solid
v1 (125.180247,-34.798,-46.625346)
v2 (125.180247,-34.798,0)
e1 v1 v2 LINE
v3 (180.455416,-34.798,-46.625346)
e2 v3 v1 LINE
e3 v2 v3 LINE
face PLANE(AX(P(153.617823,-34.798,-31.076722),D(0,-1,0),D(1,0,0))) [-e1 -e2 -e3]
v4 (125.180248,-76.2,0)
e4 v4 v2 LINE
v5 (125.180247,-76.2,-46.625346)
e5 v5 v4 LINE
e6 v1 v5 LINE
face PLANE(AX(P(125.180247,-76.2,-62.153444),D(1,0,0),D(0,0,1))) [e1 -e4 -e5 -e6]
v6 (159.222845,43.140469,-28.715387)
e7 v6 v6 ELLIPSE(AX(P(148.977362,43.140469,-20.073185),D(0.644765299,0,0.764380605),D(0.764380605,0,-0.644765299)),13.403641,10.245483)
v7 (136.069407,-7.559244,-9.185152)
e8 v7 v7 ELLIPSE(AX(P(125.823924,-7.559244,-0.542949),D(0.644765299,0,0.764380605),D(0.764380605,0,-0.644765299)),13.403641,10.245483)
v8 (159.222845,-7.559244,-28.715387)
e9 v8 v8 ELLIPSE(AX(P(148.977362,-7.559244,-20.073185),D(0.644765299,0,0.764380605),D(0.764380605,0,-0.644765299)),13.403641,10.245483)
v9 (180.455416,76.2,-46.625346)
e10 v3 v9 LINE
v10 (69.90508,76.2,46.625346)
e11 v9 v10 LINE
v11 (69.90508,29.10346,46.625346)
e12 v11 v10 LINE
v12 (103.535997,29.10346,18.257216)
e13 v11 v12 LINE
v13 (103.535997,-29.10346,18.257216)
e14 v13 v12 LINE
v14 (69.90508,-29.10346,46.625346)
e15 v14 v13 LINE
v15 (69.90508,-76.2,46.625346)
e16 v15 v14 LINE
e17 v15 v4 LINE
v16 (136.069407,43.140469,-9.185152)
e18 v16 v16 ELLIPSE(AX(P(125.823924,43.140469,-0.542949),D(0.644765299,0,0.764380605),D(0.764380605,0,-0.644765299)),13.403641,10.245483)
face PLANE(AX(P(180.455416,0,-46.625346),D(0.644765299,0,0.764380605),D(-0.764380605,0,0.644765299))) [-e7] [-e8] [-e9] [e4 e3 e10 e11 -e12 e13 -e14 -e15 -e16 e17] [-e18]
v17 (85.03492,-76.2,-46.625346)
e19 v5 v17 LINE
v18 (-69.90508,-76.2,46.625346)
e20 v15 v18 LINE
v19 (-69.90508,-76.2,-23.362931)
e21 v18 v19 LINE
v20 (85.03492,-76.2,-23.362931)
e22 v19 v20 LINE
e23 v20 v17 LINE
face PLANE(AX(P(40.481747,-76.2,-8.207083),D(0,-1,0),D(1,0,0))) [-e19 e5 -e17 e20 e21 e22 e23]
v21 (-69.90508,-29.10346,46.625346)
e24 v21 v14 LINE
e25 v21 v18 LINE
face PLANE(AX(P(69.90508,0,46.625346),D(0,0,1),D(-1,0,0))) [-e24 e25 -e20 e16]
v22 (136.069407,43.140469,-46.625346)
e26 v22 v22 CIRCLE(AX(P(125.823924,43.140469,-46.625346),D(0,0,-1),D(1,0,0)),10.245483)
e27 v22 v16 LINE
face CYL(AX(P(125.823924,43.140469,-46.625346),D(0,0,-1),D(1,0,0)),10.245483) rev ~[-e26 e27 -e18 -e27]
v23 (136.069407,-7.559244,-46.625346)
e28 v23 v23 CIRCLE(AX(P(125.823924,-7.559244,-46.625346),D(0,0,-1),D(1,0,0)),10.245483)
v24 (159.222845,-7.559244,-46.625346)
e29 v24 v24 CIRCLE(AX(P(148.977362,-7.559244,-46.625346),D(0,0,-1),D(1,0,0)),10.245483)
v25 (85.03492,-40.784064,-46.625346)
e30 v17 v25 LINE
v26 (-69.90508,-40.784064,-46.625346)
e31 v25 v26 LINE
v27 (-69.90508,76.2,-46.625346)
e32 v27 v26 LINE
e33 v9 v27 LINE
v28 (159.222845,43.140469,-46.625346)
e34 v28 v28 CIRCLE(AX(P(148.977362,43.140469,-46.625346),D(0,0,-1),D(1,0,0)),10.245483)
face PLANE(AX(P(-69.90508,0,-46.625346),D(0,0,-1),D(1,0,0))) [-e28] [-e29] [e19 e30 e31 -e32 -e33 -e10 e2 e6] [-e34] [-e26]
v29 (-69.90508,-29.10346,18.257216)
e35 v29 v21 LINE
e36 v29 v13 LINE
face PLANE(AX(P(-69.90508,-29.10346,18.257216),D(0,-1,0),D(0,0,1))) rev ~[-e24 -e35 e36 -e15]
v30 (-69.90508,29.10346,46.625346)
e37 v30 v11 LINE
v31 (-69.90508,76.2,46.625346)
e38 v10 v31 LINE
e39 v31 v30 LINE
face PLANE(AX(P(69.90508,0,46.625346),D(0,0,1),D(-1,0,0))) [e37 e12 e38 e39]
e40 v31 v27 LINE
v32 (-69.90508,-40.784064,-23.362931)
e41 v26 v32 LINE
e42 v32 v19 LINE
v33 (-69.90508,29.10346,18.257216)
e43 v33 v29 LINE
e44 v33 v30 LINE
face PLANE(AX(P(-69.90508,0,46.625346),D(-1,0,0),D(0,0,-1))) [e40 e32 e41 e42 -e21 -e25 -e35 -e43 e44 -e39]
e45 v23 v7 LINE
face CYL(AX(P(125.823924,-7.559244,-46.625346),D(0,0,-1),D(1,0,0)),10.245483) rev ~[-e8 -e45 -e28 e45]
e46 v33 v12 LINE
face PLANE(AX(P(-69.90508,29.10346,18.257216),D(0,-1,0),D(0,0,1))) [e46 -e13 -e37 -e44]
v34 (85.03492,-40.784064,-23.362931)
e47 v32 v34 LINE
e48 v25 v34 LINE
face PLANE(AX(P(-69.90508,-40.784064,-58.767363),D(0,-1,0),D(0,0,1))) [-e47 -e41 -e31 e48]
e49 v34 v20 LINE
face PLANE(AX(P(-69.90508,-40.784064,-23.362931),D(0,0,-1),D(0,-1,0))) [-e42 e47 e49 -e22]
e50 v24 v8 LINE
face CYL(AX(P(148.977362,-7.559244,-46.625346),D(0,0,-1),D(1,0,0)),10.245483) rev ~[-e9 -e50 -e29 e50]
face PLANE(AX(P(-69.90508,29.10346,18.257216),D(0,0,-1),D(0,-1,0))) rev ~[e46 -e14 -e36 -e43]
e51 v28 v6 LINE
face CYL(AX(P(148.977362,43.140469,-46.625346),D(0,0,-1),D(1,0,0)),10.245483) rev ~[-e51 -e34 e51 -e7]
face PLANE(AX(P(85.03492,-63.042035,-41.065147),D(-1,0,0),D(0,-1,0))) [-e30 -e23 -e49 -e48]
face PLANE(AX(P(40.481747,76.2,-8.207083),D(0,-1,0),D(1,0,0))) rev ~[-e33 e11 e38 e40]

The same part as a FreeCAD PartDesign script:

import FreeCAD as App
import Part
import Sketcher
Q = App.Units.Quantity


def add_polygon(sketch, points):
    """Adds a closed chain of lines whose ends are joined by coincident constraints."""
    first, n = sketch.GeometryCount, len(points)
    for a, b in zip(points, points[1:] + points[:1]):
        sketch.addGeometry(Part.LineSegment(App.Vector(*a, 0), App.Vector(*b, 0)), False)
    for i in range(n):
        sketch.addConstraint(Sketcher.Constraint("Coincident", first + i, 2, first + (i + 1) % n, 1))

doc = App.newDocument("Part")
body = doc.addObject("PartDesign::Body", "Body")

sketch1 = body.newObject("Sketcher::SketchObject", "Sketch")
sketch1.AttachmentSupport = (doc.getObject("XZ_Plane"), [""])
sketch1.MapMode = "FlatFace"
add_polygon(sketch1, [(70, 47), (-70, 47), (-70, -47), (180, -47)])
sketch1.addConstraint(Sketcher.Constraint("Horizontal", 0))
sketch1.addConstraint(Sketcher.Constraint("Vertical", 1))
sketch1.addConstraint(Sketcher.Constraint("Horizontal", 2))
sketch1.addConstraint(Sketcher.Constraint("Symmetric", 1, 2, 3, 2, -1, 1))
sketch1.addConstraint(Sketcher.Constraint("DistanceX", 0, 2, 0, 1, 139.81016))
sketch1.addConstraint(Sketcher.Constraint("DistanceY", 1, 2, 1, 1, 93.250692))
sketch1.addConstraint(Sketcher.Constraint("DistanceX", 2, 1, 2, 2, 250.360496))
pad1 = body.newObject("PartDesign::Pad", "Pad")
pad1.Profile = sketch1
pad1.Length = Q("6 in")
pad1.Midplane = True

sketch2 = body.newObject("Sketcher::SketchObject", "Sketch001")
sketch2.AttachmentSupport = (doc.getObject("YZ_Plane"), [""])
sketch2.MapMode = "FlatFace"
sketch2.AttachmentOffset = App.Placement(App.Vector(0, 0, -69.90508), App.Rotation())
add_polygon(sketch2, [(29, 76), (29, 18), (-29, 18), (-29, 76)])
sketch2.addConstraint(Sketcher.Constraint("Vertical", 0))
sketch2.addConstraint(Sketcher.Constraint("Horizontal", 1))
sketch2.addConstraint(Sketcher.Constraint("Vertical", 2))
sketch2.addConstraint(Sketcher.Constraint("Horizontal", 3))
sketch2.addConstraint(Sketcher.Constraint("DistanceX", 1, 2, 1, 1, 58.20692))
sketch2.addConstraint(Sketcher.Constraint("DistanceY", 0, 2, 0, 1, 57.454397))
sketch2.addConstraint(Sketcher.Constraint("DistanceX", -1, 1, 0, 2, 29.10346))
sketch2.addConstraint(Sketcher.Constraint("DistanceY", -1, 1, 0, 2, 18.257216))
pocket1 = body.newObject("PartDesign::Pocket", "Pocket")
pocket1.Profile = sketch2
pocket1.Length = Q("8.47 in")
pocket1.Reversed = True

sketch3 = body.newObject("Sketcher::SketchObject", "Sketch002")
sketch3.AttachmentSupport = (doc.getObject("XZ_Plane"), [""])
sketch3.MapMode = "FlatFace"
sketch3.AttachmentOffset = App.Placement(App.Vector(0, 0, 3 * 25.4), App.Rotation())
add_polygon(sketch3, [(186, 8), (115, 8), (180, -47), (115, -47), (115, -62), (186, -62)])
sketch3.addConstraint(Sketcher.Constraint("Horizontal", 0))
sketch3.addConstraint(Sketcher.Constraint("Horizontal", 2))
sketch3.addConstraint(Sketcher.Constraint("Vertical", 3))
sketch3.addConstraint(Sketcher.Constraint("Horizontal", 4))
sketch3.addConstraint(Sketcher.Constraint("Vertical", 5))
sketch3.addConstraint(Sketcher.Constraint("Vertical", 0, 2, 2, 2))
sketch3.addConstraint(Sketcher.Constraint("DistanceX", 0, 2, 0, 1, 70.56239))
sketch3.addConstraint(Sketcher.Constraint("DistanceY", 5, 1, 5, 2, 70.124939))
sketch3.addConstraint(Sketcher.Constraint("Distance", 1, 85.144319))
sketch3.addConstraint(Sketcher.Constraint("DistanceX", 2, 2, 2, 1, 65.082666))
sketch3.addConstraint(Sketcher.Constraint("DistanceX", -1, 1, 0, 2, 115.37275))
sketch3.addConstraint(Sketcher.Constraint("DistanceY", -1, 1, 0, 2, 8.272756))
pocket2 = body.newObject("PartDesign::Pocket", "Pocket001")
pocket2.Profile = sketch3
pocket2.Length = Q("6.09 in")

sketch4 = body.newObject("Sketcher::SketchObject", "Sketch003")
sketch4.AttachmentSupport = (doc.getObject("XZ_Plane"), [""])
sketch4.MapMode = "FlatFace"
sketch4.AttachmentOffset = App.Placement(App.Vector(0, 0, 3 * 25.4), App.Rotation())
add_polygon(sketch4, [(125, 0), (125, -62), (182, -62), (182, 0)])
sketch4.addConstraint(Sketcher.Constraint("Vertical", 0))
sketch4.addConstraint(Sketcher.Constraint("Horizontal", 1))
sketch4.addConstraint(Sketcher.Constraint("Vertical", 2))
sketch4.addConstraint(Sketcher.Constraint("Horizontal", 3))
sketch4.addConstraint(Sketcher.Constraint("PointOnObject", 2, 2, -1))
sketch4.addConstraint(Sketcher.Constraint("DistanceX", 1, 1, 1, 2, 56.875151))
sketch4.addConstraint(Sketcher.Constraint("DistanceX", -1, 1, 1, 2, 182.055398))
sketch4.addConstraint(Sketcher.Constraint("DistanceY", 0, 2, 0, 1, 62.153444))
pocket3 = body.newObject("PartDesign::Pocket", "Pocket002")
pocket3.Profile = sketch4
pocket3.Length = Q("1.63 in")

sketch5 = body.newObject("Sketcher::SketchObject", "Sketch004")
sketch5.AttachmentSupport = (doc.getObject("YZ_Plane"), [""])
sketch5.MapMode = "FlatFace"
sketch5.AttachmentOffset = App.Placement(App.Vector(0, 0, -69.90508), App.Rotation())
add_polygon(sketch5, [(-41, -23), (-41, -59), (-85, -59), (-85, -23)])
sketch5.addConstraint(Sketcher.Constraint("Vertical", 0))
sketch5.addConstraint(Sketcher.Constraint("Horizontal", 1))
sketch5.addConstraint(Sketcher.Constraint("Vertical", 2))
sketch5.addConstraint(Sketcher.Constraint("Horizontal", 3))
sketch5.addConstraint(Sketcher.Constraint("DistanceX", 1, 2, 1, 1, 44.515941))
sketch5.addConstraint(Sketcher.Constraint("DistanceY", 0, 2, 0, 1, 35.404432))
sketch5.addConstraint(Sketcher.Constraint("DistanceY", 2, 2, -1, 1, 23.362931))
sketch5.addConstraint(Sketcher.Constraint("DistanceX", 0, 2, -1, 1, 40.784064))
pocket4 = body.newObject("PartDesign::Pocket", "Pocket003")
pocket4.Profile = sketch5
pocket4.Length = Q("6.1 in")
pocket4.Reversed = True

sketch6 = body.newObject("Sketcher::SketchObject", "Sketch005")
sketch6.AttachmentSupport = (doc.getObject("XY_Plane"), [""])
sketch6.MapMode = "FlatFace"
sketch6.AttachmentOffset = App.Placement(App.Vector(0, 0, -46.625346), App.Rotation())
sketch6.addGeometry(Part.Circle(App.Vector(149, -8, 0), App.Vector(0, 0, 1), 10), False)
sketch6.addGeometry(Part.Circle(App.Vector(149, 43, 0), App.Vector(0, 0, 1), 10), False)
sketch6.addGeometry(Part.Circle(App.Vector(126, -8, 0), App.Vector(0, 0, 1), 10), False)
sketch6.addGeometry(Part.Circle(App.Vector(126, 43, 0), App.Vector(0, 0, 1), 10), False)
sketch6.addConstraint(Sketcher.Constraint("Equal", 0, 1))
sketch6.addConstraint(Sketcher.Constraint("Equal", 1, 2))
sketch6.addConstraint(Sketcher.Constraint("Equal", 2, 3))
sketch6.addConstraint(Sketcher.Constraint("Horizontal", 0, 3, 2, 3))
sketch6.addConstraint(Sketcher.Constraint("Horizontal", 1, 3, 3, 3))
sketch6.addConstraint(Sketcher.Constraint("Vertical", 0, 3, 1, 3))
sketch6.addConstraint(Sketcher.Constraint("Vertical", 2, 3, 3, 3))
sketch6.addConstraint(Sketcher.Constraint("Diameter", 0, 20.490966))
sketch6.addConstraint(Sketcher.Constraint("DistanceX", -1, 1, 0, 3, 148.977362))
sketch6.addConstraint(Sketcher.Constraint("DistanceY", -1, 1, 1, 3, 43.140469))
sketch6.addConstraint(Sketcher.Constraint("DistanceY", 0, 3, -1, 1, 7.559244))
sketch6.addConstraint(Sketcher.Constraint("DistanceX", -1, 1, 2, 3, 125.823924))
pocket5 = body.newObject("PartDesign::Pocket", "Pocket004")
pocket5.Profile = sketch6
pocket5.Type = "ThroughAll"
pocket5.Reversed = True

doc.recompute()
